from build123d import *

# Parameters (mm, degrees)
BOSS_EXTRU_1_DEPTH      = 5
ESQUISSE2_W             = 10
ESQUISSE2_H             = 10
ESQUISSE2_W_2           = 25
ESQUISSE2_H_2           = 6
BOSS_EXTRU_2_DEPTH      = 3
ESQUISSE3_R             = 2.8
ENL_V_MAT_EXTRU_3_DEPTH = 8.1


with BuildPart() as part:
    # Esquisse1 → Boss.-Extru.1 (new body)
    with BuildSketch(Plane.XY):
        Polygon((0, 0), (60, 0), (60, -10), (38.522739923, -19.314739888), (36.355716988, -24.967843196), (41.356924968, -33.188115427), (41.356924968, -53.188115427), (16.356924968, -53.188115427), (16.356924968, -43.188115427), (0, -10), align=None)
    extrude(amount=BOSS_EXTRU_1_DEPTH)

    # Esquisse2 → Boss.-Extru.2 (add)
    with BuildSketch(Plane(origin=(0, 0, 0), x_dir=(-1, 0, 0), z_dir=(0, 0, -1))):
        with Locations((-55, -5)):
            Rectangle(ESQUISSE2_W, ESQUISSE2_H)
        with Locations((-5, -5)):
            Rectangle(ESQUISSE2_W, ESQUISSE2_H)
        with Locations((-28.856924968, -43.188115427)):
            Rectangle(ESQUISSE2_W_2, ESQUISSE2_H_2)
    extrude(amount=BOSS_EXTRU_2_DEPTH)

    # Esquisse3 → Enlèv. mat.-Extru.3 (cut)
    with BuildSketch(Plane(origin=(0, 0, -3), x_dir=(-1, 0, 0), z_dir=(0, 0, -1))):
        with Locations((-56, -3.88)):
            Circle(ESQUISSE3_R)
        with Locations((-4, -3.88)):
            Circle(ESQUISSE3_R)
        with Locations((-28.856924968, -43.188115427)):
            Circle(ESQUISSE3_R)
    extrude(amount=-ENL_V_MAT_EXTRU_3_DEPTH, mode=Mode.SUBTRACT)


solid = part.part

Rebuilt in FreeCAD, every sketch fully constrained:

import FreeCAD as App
import Part
import Sketcher

doc = App.newDocument("Part")
body = doc.addObject("PartDesign::Body", "Body")

# Sketch on XY plane
sketch1 = doc.addObject("Sketcher::SketchObject", "Sketch")
body.addObject(sketch1)
sketch1.AttachmentSupport = (doc.XY_Plane, [""])
sketch1.MapMode = "FlatFace"
sketch1.addGeometry([
    Part.LineSegment(App.Vector(60, 0, 0), App.Vector(0, 0, 0)),  # 0
    Part.LineSegment(App.Vector(0, 0, 0), App.Vector(0, -10, 0)),  # 1
    Part.LineSegment(App.Vector(0, -10, 0), App.Vector(16, -43, 0)),  # 2
    Part.LineSegment(App.Vector(16, -43, 0), App.Vector(16, -53, 0)),  # 3
    Part.LineSegment(App.Vector(16, -53, 0), App.Vector(41, -53, 0)),  # 4
    Part.LineSegment(App.Vector(41, -53, 0), App.Vector(41, -33, 0)),  # 5
    Part.LineSegment(App.Vector(41, -33, 0), App.Vector(36, -25, 0)),  # 6
    Part.LineSegment(App.Vector(36, -25, 0), App.Vector(39, -19, 0)),  # 7
    Part.LineSegment(App.Vector(39, -19, 0), App.Vector(60, -10, 0)),  # 8
    Part.LineSegment(App.Vector(60, -10, 0), App.Vector(60, 0, 0)),  # 9
], False)
sketch1.addConstraint([
    Sketcher.Constraint("Coincident", 0, 2, 1, 1),
    Sketcher.Constraint("Coincident", 1, 2, 2, 1),
    Sketcher.Constraint("Coincident", 2, 2, 3, 1),
    Sketcher.Constraint("Coincident", 3, 2, 4, 1),
    Sketcher.Constraint("Coincident", 4, 2, 5, 1),
    Sketcher.Constraint("Coincident", 5, 2, 6, 1),
    Sketcher.Constraint("Coincident", 6, 2, 7, 1),
    Sketcher.Constraint("Coincident", 7, 2, 8, 1),
    Sketcher.Constraint("Coincident", 8, 2, 9, 1),
    Sketcher.Constraint("Coincident", 9, 2, 0, 1),
    Sketcher.Constraint("Horizontal", 0),
    Sketcher.Constraint("Vertical", 1),
    Sketcher.Constraint("Vertical", 3),
    Sketcher.Constraint("Horizontal", 4),
    Sketcher.Constraint("Vertical", 5),
    Sketcher.Constraint("Vertical", 9),
    Sketcher.Constraint("Coincident", 0, 2, -1, 1),
    Sketcher.Constraint("Horizontal", 1, 2, 8, 2),
    Sketcher.Constraint("Equal", 1, 3),
    Sketcher.Constraint("DistanceX", 0, 2, 0, 1, 60.0),
    Sketcher.Constraint("DistanceX", 4, 1, 4, 2, 25.0),
    Sketcher.Constraint("DistanceY", 1, 2, 1, 1, 10.0),
    Sketcher.Constraint("DistanceY", 5, 1, 5, 2, 20.0),
    Sketcher.Constraint("Distance", 2, 37.0),
    Sketcher.Constraint("Distance", 7, 6.054219),
    Sketcher.Constraint("Distance", 8, 23.410192),
    Sketcher.Constraint("DistanceX", -1, 1, 7, 2, 38.52274),
    Sketcher.Constraint("Distance", 6, 9.622108),
    Sketcher.Constraint("DistanceX", -1, 1, 2, 2, 16.356925),
])
pad1 = doc.addObject("PartDesign::Pad", "Pad")
body.addObject(pad1)
pad1.Profile = sketch1
pad1.Length = 5

# Sketch on XY plane
sketch2 = doc.addObject("Sketcher::SketchObject", "Sketch001")
body.addObject(sketch2)
sketch2.AttachmentSupport = (doc.XY_Plane, [""])
sketch2.MapMode = "FlatFace"
sketch2.addGeometry([
    Part.LineSegment(App.Vector(60, 0, 0), App.Vector(60, -10, 0)),  # 0
    Part.LineSegment(App.Vector(60, -10, 0), App.Vector(50, -10, 0)),  # 1
    Part.LineSegment(App.Vector(50, -10, 0), App.Vector(50, 0, 0)),  # 2
    Part.LineSegment(App.Vector(50, 0, 0), App.Vector(60, 0, 0)),  # 3
    Part.LineSegment(App.Vector(10, 0, 0), App.Vector(10, -10, 0)),  # 4
    Part.LineSegment(App.Vector(10, -10, 0), App.Vector(0, -10, 0)),  # 5
    Part.LineSegment(App.Vector(0, -10, 0), App.Vector(0, 0, 0)),  # 6
    Part.LineSegment(App.Vector(0, 0, 0), App.Vector(10, 0, 0)),  # 7
    Part.LineSegment(App.Vector(41, -40, 0), App.Vector(41, -46, 0)),  # 8
    Part.LineSegment(App.Vector(41, -46, 0), App.Vector(16, -46, 0)),  # 9
    Part.LineSegment(App.Vector(16, -46, 0), App.Vector(16, -40, 0)),  # 10
    Part.LineSegment(App.Vector(16, -40, 0), App.Vector(41, -40, 0)),  # 11
], False)
sketch2.addConstraint([
    Sketcher.Constraint("Coincident", 0, 2, 1, 1),
    Sketcher.Constraint("Coincident", 1, 2, 2, 1),
    Sketcher.Constraint("Coincident", 2, 2, 3, 1),
    Sketcher.Constraint("Coincident", 3, 2, 0, 1),
    Sketcher.Constraint("Coincident", 4, 2, 5, 1),
    Sketcher.Constraint("Coincident", 5, 2, 6, 1),
    Sketcher.Constraint("Coincident", 6, 2, 7, 1),
    Sketcher.Constraint("Coincident", 7, 2, 4, 1),
    Sketcher.Constraint("Coincident", 8, 2, 9, 1),
    Sketcher.Constraint("Coincident", 9, 2, 10, 1),
    Sketcher.Constraint("Coincident", 10, 2, 11, 1),
    Sketcher.Constraint("Coincident", 11, 2, 8, 1),
    Sketcher.Constraint("Vertical", 0),
    Sketcher.Constraint("Horizontal", 1),
    Sketcher.Constraint("Vertical", 2),
    Sketcher.Constraint("Horizontal", 3),
    Sketcher.Constraint("Vertical", 4),
    Sketcher.Constraint("Horizontal", 5),
    Sketcher.Constraint("Vertical", 6),
    Sketcher.Constraint("Horizontal", 7),
    Sketcher.Constraint("Vertical", 8),
    Sketcher.Constraint("Horizontal", 9),
    Sketcher.Constraint("Vertical", 10),
    Sketcher.Constraint("Horizontal", 11),
    Sketcher.Constraint("Coincident", 6, 2, -1, 1),
    Sketcher.Constraint("PointOnObject", 2, 2, -1),
    Sketcher.Constraint("Horizontal", 1, 2, 4, 2),
    Sketcher.Constraint("Equal", 3, 5),
    Sketcher.Constraint("Equal", 7, 0),
    Sketcher.Constraint("DistanceX", 1, 2, 1, 1, 10.0),
    Sketcher.Constraint("DistanceX", 9, 2, 9, 1, 25.0),
    Sketcher.Constraint("DistanceY", 8, 2, 8, 1, 6.0),
    Sketcher.Constraint("DistanceX", -1, 1, 0, 2, 60.0),
    Sketcher.Constraint("DistanceX", -1, 1, 8, 2, 41.356925),
    Sketcher.Constraint("DistanceY", 8, 2, -1, 1, 46.188115),
])
pad2 = doc.addObject("PartDesign::Pad", "Pad001")
body.addObject(pad2)
pad2.Profile = sketch2
pad2.Length = 3
pad2.Reversed = True

# Sketch on XY plane
sketch3 = doc.addObject("Sketcher::SketchObject", "Sketch002")
body.addObject(sketch3)
sketch3.AttachmentSupport = (doc.XY_Plane, [""])
sketch3.MapMode = "FlatFace"
sketch3.AttachmentOffset = App.Placement(App.Vector(0, 0, -3), App.Rotation())
sketch3.addGeometry([
    Part.Circle(App.Vector(56, -3.9, 0), App.Vector(0, 0, 1), 2.8),
    Part.Circle(App.Vector(4, -3.9, 0), App.Vector(0, 0, 1), 2.8),
    Part.Circle(App.Vector(28.9, -43.2, 0), App.Vector(0, 0, 1), 2.8),
], False)
sketch3.addConstraint([
    Sketcher.Constraint("Equal", 0, 1),
    Sketcher.Constraint("Equal", 1, 2),
    Sketcher.Constraint("Horizontal", 0, 3, 1, 3),
    Sketcher.Constraint("Diameter", 0, 5.6),
    Sketcher.Constraint("DistanceX", -1, 1, 0, 3, 56.0),
    Sketcher.Constraint("DistanceX", -1, 1, 1, 3, 4.0),
    Sketcher.Constraint("DistanceY", 0, 3, -1, 1, 3.88),
    Sketcher.Constraint("DistanceX", -1, 1, 2, 3, 28.856925),
    Sketcher.Constraint("DistanceY", 2, 3, -1, 1, 43.188115),
])
pocket1 = doc.addObject("PartDesign::Pocket", "Pocket")
body.addObject(pocket1)
pocket1.Profile = sketch3
pocket1.Length = 8.1
pocket1.Reversed = True

doc.recompute()
